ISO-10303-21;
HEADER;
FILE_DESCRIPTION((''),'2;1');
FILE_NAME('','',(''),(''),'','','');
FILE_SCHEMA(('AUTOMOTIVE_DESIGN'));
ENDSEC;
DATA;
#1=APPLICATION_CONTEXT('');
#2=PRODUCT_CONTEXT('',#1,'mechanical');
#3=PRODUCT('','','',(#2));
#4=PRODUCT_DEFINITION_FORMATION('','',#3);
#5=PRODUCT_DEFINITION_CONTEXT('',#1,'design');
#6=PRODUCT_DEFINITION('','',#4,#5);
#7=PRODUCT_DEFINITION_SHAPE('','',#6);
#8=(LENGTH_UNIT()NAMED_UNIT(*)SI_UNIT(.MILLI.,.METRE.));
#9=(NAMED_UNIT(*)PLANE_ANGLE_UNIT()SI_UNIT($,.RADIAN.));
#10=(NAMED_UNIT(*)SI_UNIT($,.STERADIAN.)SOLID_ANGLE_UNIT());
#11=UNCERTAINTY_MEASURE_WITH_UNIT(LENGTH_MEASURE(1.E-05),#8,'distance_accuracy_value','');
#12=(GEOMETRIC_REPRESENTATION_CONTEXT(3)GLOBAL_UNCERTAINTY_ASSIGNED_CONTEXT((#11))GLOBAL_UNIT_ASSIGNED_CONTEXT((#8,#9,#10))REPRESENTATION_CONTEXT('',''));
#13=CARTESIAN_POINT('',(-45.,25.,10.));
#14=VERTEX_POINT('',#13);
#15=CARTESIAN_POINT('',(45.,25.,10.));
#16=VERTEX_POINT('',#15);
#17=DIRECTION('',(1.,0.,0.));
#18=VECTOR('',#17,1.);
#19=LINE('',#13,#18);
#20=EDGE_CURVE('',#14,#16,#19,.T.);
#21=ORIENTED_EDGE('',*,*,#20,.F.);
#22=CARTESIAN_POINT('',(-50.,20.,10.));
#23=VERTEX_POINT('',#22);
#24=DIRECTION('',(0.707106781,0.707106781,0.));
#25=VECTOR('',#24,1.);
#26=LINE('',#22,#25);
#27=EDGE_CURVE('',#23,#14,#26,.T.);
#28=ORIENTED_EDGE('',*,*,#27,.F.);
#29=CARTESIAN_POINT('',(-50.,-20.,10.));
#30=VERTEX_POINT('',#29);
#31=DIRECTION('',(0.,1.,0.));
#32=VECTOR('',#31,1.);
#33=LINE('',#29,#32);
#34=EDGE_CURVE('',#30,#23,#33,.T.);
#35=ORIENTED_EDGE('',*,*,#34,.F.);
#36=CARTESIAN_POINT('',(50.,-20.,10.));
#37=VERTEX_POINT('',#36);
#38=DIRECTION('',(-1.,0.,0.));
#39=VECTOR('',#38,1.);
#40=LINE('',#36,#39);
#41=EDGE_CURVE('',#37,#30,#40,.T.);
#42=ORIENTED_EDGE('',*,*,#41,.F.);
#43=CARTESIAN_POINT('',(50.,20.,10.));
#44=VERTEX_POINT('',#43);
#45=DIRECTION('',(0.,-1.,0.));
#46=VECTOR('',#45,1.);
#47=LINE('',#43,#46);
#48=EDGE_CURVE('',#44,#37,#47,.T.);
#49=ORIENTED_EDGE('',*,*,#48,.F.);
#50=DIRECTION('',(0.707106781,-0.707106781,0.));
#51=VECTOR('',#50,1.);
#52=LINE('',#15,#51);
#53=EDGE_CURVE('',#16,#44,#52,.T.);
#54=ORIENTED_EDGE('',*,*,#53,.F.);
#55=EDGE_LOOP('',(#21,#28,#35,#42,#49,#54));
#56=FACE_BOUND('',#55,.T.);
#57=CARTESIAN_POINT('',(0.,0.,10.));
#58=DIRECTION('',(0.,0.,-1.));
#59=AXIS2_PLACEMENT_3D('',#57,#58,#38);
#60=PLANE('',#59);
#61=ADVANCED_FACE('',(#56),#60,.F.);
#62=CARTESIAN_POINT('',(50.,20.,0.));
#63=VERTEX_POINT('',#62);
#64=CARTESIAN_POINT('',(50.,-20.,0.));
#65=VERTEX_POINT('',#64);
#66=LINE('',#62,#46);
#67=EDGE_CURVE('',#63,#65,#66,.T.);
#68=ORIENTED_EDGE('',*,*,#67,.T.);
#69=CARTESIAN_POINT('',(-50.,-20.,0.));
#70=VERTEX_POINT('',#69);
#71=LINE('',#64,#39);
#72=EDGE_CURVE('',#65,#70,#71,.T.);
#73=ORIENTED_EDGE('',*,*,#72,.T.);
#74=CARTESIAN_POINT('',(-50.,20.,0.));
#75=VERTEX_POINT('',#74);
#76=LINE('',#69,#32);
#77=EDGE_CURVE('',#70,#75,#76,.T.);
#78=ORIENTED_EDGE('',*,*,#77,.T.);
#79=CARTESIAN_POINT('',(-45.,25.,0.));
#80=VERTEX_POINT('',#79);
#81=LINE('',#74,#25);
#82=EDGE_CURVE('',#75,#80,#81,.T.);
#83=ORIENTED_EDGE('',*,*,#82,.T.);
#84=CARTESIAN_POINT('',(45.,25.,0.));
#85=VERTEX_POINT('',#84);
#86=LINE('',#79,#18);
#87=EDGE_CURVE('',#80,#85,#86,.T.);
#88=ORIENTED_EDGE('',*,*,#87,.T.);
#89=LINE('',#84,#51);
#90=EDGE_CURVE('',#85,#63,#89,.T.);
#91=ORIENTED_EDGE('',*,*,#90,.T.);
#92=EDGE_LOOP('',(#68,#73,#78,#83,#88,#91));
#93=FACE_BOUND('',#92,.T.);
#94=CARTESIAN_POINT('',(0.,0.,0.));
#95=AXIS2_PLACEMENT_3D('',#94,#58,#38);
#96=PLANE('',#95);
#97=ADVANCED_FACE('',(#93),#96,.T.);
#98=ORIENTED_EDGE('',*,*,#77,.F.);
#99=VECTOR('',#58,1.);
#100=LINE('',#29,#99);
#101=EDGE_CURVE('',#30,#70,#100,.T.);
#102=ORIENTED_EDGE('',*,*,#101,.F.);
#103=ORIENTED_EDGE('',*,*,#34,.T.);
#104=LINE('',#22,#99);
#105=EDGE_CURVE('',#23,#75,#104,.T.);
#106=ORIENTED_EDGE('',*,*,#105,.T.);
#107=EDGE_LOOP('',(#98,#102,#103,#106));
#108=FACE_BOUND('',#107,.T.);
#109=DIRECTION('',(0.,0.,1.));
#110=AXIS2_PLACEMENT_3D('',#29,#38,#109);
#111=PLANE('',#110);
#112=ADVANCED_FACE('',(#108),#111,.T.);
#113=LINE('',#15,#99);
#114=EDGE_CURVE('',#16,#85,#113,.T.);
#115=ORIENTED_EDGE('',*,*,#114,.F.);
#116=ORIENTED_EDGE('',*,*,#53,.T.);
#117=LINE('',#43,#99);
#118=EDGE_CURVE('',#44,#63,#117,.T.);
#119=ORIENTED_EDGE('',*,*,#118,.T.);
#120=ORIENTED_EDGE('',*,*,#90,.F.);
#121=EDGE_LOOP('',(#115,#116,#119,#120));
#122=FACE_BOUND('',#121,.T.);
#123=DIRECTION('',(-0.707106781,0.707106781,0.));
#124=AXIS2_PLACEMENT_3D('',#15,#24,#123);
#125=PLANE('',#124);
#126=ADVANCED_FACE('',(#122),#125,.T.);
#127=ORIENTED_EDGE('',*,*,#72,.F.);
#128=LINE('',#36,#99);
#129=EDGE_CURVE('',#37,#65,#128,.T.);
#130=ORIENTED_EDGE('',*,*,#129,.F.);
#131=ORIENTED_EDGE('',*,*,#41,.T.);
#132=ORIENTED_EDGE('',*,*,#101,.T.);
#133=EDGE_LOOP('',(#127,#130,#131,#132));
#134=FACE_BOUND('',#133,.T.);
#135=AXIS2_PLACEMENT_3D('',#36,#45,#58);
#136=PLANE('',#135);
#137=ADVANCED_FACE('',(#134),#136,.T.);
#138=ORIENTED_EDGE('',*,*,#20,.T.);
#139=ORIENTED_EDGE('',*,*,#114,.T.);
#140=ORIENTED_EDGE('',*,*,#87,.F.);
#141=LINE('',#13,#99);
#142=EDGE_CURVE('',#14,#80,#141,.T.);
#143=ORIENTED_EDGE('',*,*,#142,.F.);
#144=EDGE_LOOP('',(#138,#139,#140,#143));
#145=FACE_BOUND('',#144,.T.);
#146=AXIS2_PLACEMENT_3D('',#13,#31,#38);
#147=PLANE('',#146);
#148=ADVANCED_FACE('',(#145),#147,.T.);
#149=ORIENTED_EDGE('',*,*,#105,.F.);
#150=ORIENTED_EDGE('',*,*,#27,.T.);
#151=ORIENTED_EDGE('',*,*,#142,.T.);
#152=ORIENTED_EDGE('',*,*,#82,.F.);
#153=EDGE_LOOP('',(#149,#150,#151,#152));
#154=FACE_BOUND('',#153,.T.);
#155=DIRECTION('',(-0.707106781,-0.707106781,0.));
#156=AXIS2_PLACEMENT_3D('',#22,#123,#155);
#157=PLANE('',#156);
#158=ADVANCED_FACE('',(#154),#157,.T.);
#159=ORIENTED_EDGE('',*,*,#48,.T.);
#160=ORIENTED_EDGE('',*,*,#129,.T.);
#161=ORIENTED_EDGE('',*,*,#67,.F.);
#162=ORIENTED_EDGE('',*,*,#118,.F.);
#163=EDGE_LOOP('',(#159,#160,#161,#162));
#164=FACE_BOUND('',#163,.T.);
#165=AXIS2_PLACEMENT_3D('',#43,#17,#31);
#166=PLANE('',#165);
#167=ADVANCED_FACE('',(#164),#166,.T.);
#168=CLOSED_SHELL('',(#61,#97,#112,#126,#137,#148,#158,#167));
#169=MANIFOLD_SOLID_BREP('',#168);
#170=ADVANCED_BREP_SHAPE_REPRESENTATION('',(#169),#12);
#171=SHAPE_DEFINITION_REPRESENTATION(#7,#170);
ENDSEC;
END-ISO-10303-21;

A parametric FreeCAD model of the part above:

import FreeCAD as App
import Part
import Sketcher
from FreeCAD import Vector
Q = App.Units.Quantity


def add_polygon(sketch, points):
    """Adds a closed chain of lines whose ends are joined by coincident constraints."""
    first, n = sketch.GeometryCount, len(points)
    for a, b in zip(points, points[1:] + points[:1]):
        sketch.addGeometry(Part.LineSegment(App.Vector(*a, 0), App.Vector(*b, 0)), False)
    for i in range(n):
        sketch.addConstraint(Sketcher.Constraint("Coincident", first + i, 2, first + (i + 1) % n, 1))

doc = App.newDocument("Part")
body = doc.addObject("PartDesign::Body", "Body")

# Sketch on XY plane
sketch1 = doc.addObject("Sketcher::SketchObject", "Sketch")
body.addObject(sketch1)
sketch1.AttachmentSupport = (doc.XY_Plane, [""])
sketch1.MapMode = "FlatFace"
add_polygon(sketch1, [(-50, -20), (-50, 20), (-45, 25), (45, 25), (50, 20), (50, -20)])  # lines 0-5
sketch1.addConstraint([
    Sketcher.Constraint("Vertical", 0),
    Sketcher.Constraint("Horizontal", 2),
    Sketcher.Constraint("Vertical", 4),
    Sketcher.Constraint("Horizontal", 5),
    Sketcher.Constraint("Symmetric", 0, 2, 4, 2, -1, 1),
    Sketcher.Constraint("Perpendicular", 1, 3),
    Sketcher.Constraint("Horizontal", 0, 2, 3, 2),
    Sketcher.Constraint("Equal", 1, 3),
    Sketcher.Constraint("DistanceX", 2, 1, 2, 2, Q("90 mm")),
    Sketcher.Constraint("DistanceX", 5, 2, 5, 1, Q("100 mm")),
    Sketcher.Constraint("DistanceY", 0, 1, 0, 2, Q("40 mm")),
])
pad1 = doc.addObject("PartDesign::Pad", "Pad")
body.addObject(pad1)
pad1.Profile = sketch1
pad1.Length = 10

doc.recompute()
